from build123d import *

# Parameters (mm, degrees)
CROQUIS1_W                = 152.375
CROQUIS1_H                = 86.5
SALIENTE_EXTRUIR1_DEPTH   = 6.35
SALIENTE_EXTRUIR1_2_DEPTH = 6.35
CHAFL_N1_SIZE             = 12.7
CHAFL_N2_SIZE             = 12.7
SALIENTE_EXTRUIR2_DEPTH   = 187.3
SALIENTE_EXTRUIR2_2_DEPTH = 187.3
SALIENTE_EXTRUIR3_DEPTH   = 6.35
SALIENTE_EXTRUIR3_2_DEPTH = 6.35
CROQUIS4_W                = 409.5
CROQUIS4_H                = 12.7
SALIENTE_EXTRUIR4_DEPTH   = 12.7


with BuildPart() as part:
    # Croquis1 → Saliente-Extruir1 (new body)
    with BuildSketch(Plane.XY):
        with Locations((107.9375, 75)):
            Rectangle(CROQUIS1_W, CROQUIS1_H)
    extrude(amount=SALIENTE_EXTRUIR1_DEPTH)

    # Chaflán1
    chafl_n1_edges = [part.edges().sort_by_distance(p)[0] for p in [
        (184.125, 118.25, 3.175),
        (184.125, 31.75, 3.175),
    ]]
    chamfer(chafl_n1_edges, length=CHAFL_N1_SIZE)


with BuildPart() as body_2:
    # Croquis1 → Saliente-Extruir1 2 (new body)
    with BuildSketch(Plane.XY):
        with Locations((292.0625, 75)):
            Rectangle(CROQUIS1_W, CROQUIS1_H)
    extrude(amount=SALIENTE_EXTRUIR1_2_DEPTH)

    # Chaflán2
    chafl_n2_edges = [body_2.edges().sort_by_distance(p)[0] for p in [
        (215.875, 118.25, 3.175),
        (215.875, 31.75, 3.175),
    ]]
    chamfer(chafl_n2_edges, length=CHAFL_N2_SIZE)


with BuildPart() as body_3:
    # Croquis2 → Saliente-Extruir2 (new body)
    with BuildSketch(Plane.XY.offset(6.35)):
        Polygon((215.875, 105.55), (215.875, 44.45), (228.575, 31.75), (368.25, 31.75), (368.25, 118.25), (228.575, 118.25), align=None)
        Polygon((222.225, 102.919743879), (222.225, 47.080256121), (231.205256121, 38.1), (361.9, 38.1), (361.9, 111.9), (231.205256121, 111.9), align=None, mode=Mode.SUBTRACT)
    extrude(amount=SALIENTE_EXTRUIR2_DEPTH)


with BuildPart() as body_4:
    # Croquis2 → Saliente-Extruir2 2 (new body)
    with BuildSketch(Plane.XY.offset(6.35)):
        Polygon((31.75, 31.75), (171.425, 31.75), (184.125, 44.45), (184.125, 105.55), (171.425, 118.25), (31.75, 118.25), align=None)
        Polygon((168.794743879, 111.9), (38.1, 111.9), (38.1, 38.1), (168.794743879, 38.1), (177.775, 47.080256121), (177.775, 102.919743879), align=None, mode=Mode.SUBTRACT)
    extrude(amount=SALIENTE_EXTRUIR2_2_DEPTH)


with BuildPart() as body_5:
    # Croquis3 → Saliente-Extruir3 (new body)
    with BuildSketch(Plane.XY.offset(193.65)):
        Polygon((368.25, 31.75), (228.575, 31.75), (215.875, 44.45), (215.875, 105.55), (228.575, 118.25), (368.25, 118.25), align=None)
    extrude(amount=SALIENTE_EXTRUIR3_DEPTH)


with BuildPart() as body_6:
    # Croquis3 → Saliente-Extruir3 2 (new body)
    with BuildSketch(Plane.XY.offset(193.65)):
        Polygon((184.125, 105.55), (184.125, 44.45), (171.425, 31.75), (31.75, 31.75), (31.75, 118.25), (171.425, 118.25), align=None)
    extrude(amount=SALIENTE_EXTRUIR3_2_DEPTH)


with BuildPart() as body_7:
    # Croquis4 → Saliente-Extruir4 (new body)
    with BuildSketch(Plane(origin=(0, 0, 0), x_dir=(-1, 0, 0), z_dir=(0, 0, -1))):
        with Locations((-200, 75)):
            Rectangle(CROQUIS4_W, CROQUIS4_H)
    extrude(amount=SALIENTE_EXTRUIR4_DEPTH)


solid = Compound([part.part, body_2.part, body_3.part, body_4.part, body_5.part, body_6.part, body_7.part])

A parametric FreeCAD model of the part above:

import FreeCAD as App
import Part
import Sketcher
from FreeCAD import Vector
Q = App.Units.Quantity


def edges_at(feature, points):
    """Names of the edges that pass closest to the given points."""
    edges = feature.Shape.Edges
    near = lambda p: min(range(len(edges)), key=lambda i: edges[i].distToShape(Part.Vertex(*p))[0])
    return sorted({f"Edge{near(p) + 1}" for p in points})


def add_polygon(sketch, points):
    """Adds a closed chain of lines whose ends are joined by coincident constraints."""
    first, n = sketch.GeometryCount, len(points)
    for a, b in zip(points, points[1:] + points[:1]):
        sketch.addGeometry(Part.LineSegment(App.Vector(*a, 0), App.Vector(*b, 0)), False)
    for i in range(n):
        sketch.addConstraint(Sketcher.Constraint("Coincident", first + i, 2, first + (i + 1) % n, 1))

doc = App.newDocument("Part")
params = doc.addObject("Spreadsheet::Sheet", "Params")
for row, (alias, value) in enumerate([
    ("sketch1_height", "86.5 mm"),
    ("pad1_length", "6.35 mm"),
    ("chamfer_size", "12.7 mm"),
    ("sketch2_height", "86.5 mm"),
    ("pad2_length", "6.35 mm"),
    ("chamfer2_size", "12.7 mm"),
    ("sketch3_height", "61.1 mm"),
    ("sketch3_height2", "86.5 mm"),
    ("sketch3_height3", "73.8 mm"),
    ("sketch3_length", "12.7 mm"),
    ("pad3_length", "187.3 mm"),
    ("sketch4_height", "61.1 mm"),
    ("sketch4_height2", "86.5 mm"),
    ("sketch4_height3", "73.8 mm"),
    ("sketch4_length", "12.7 mm"),
    ("pad4_length", "187.3 mm"),
    ("sketch5_height", "86.5 mm"),
    ("sketch5_height2", "61.1 mm"),
    ("pad5_length", "6.35 mm"),
    ("sketch6_height", "61.1 mm"),
    ("sketch6_height2", "86.5 mm"),
    ("pad6_length", "6.35 mm"),
    ("sketch7_width", "409.5 mm"),
    ("sketch7_height", "12.7 mm"),
    ("pad7_length", "12.7 mm"),
], start=1):
    params.set(f"A{row}", alias)
    params.set(f"B{row}", "=" + value)
    params.setAlias(f"B{row}", alias)

body = doc.addObject("PartDesign::Body", "Body")

# Sketch on XY plane
sketch1 = doc.addObject("Sketcher::SketchObject", "Sketch")
body.addObject(sketch1)
sketch1.AttachmentSupport = (doc.XY_Plane, [""])
sketch1.MapMode = "FlatFace"
add_polygon(sketch1, [(32, 118), (32, 32), (184, 32), (184, 118)])  # lines 0-3
sketch1.addConstraint(Sketcher.Constraint("Vertical", 0))
sketch1.addConstraint(Sketcher.Constraint("Horizontal", 1))
sketch1.addConstraint(Sketcher.Constraint("Vertical", 2))
sketch1.addConstraint(Sketcher.Constraint("Horizontal", 3))
sketch1.addConstraint(Sketcher.Constraint("DistanceY", 0, 2, 0, 1, Q("86.5 mm")))
sketch1.addConstraint(Sketcher.Constraint("DistanceX", 1, 1, 1, 2, Q("152.375 mm")))
sketch1.addConstraint(Sketcher.Constraint("DistanceX", -1, 1, 0, 2, Q("31.75 mm")))
sketch1.addConstraint(Sketcher.Constraint("DistanceY", -1, 1, 0, 2, Q("31.75 mm")))
sketch1.setExpression("Constraints[8]", "Params.sketch1_height")
pad1 = doc.addObject("PartDesign::Pad", "Pad")
body.addObject(pad1)
pad1.Profile = sketch1
pad1.setExpression("Length", "Params.pad1_length")
doc.recompute()

chamfer = doc.addObject("PartDesign::Chamfer", "Chamfer")
body.addObject(chamfer)
chamfer.Base = (pad1, edges_at(pad1, [(184.125, 118.25, 3.175), (184.125, 31.75, 3.175)]))
chamfer.setExpression("Size", "Params.chamfer_size")
body2 = doc.addObject("PartDesign::Body", "Body001")

# Sketch on XY plane
sketch2 = doc.addObject("Sketcher::SketchObject", "Sketch001")
body2.addObject(sketch2)
sketch2.AttachmentSupport = (doc.getObject("XY_Plane001"), [""])
sketch2.MapMode = "FlatFace"
add_polygon(sketch2, [(216, 118), (216, 32), (368, 32), (368, 118)])  # lines 0-3
sketch2.addConstraint(Sketcher.Constraint("Vertical", 0))
sketch2.addConstraint(Sketcher.Constraint("Horizontal", 1))
sketch2.addConstraint(Sketcher.Constraint("Vertical", 2))
sketch2.addConstraint(Sketcher.Constraint("Horizontal", 3))
sketch2.addConstraint(Sketcher.Constraint("DistanceY", 0, 2, 0, 1, Q("86.5 mm")))
sketch2.addConstraint(Sketcher.Constraint("DistanceX", 1, 1, 1, 2, Q("152.375 mm")))
sketch2.addConstraint(Sketcher.Constraint("DistanceY", -1, 1, 0, 2, Q("31.75 mm")))
sketch2.addConstraint(Sketcher.Constraint("DistanceX", -1, 1, 1, 2, Q("368.25 mm")))
sketch2.setExpression("Constraints[8]", "Params.sketch2_height")
pad2 = doc.addObject("PartDesign::Pad", "Pad001")
body2.addObject(pad2)
pad2.Profile = sketch2
pad2.setExpression("Length", "Params.pad2_length")
doc.recompute()

chamfer2 = doc.addObject("PartDesign::Chamfer", "Chamfer001")
body2.addObject(chamfer2)
chamfer2.Base = (pad2, edges_at(pad2, [(215.875, 118.25, 3.175), (215.875, 31.75, 3.175)]))
chamfer2.setExpression("Size", "Params.chamfer2_size")
body3 = doc.addObject("PartDesign::Body", "Body002")

# Sketch on XY plane
sketch3 = doc.addObject("Sketcher::SketchObject", "Sketch002")
body3.addObject(sketch3)
sketch3.AttachmentSupport = (doc.getObject("XY_Plane002"), [""])
sketch3.MapMode = "FlatFace"
sketch3.AttachmentOffset = App.Placement(Vector(0, 0, 6.35), App.Rotation())
add_polygon(sketch3, [(216, 106), (216, 44), (229, 32), (368, 32), (368, 118), (229, 118)])  # lines 0-5
add_polygon(sketch3, [(222, 47), (222, 103), (231, 112), (362, 112), (362, 38), (231, 38)])  # lines 6-11
sketch3.addConstraint(Sketcher.Constraint("Vertical", 0))
sketch3.addConstraint(Sketcher.Constraint("Horizontal", 2))
sketch3.addConstraint(Sketcher.Constraint("Vertical", 3))
sketch3.addConstraint(Sketcher.Constraint("Horizontal", 4))
sketch3.addConstraint(Sketcher.Constraint("Vertical", 6))
sketch3.addConstraint(Sketcher.Constraint("Horizontal", 8))
sketch3.addConstraint(Sketcher.Constraint("Vertical", 9))
sketch3.addConstraint(Sketcher.Constraint("Horizontal", 10))
sketch3.addConstraint(Sketcher.Constraint("Perpendicular", 1, 5))
sketch3.addConstraint(Sketcher.Constraint("Parallel", 5, 7))
sketch3.addConstraint(Sketcher.Constraint("Perpendicular", 7, 11))
sketch3.addConstraint(Sketcher.Constraint("Vertical", 1, 2, 4, 2))
sketch3.addConstraint(Sketcher.Constraint("Vertical", 7, 2, 10, 2))
sketch3.addConstraint(Sketcher.Constraint("Equal", 1, 5))
sketch3.addConstraint(Sketcher.Constraint("DistanceY", 0, 2, 0, 1, Q("61.1 mm")))
sketch3.addConstraint(Sketcher.Constraint("DistanceY", 3, 1, 3, 2, Q("86.5 mm")))
sketch3.addConstraint(Sketcher.Constraint("DistanceY", 9, 2, 9, 1, Q("73.8 mm")))
sketch3.addConstraint(Sketcher.Constraint("Distance", 7, Q("12.7 mm")))
sketch3.addConstraint(Sketcher.Constraint("DistanceY", -1, 1, 7, 2, Q("111.9 mm")))
sketch3.addConstraint(Sketcher.Constraint("DistanceX", -1, 1, 8, 2, Q("361.9 mm")))
sketch3.addConstraint(Sketcher.Constraint("DistanceX", 2, 1, 2, 2, Q("139.675 mm")))
sketch3.addConstraint(Sketcher.Constraint("DistanceY", -1, 1, 0, 2, Q("44.45 mm")))
sketch3.addConstraint(Sketcher.Constraint("DistanceX", -1, 1, 2, 2, Q("368.25 mm")))
sketch3.addConstraint(Sketcher.Constraint("DistanceX", 5, 2, 6, 2, Q("6.35 mm")))
sketch3.setExpression("Constraints[26]", "Params.sketch3_height")
sketch3.setExpression("Constraints[27]", "Params.sketch3_height2")
sketch3.setExpression("Constraints[28]", "Params.sketch3_height3")
sketch3.setExpression("Constraints[29]", "Params.sketch3_length")
pad3 = doc.addObject("PartDesign::Pad", "Pad002")
body3.addObject(pad3)
pad3.Profile = sketch3
pad3.setExpression("Length", "Params.pad3_length")
body4 = doc.addObject("PartDesign::Body", "Body003")

# Sketch on XY plane
sketch4 = doc.addObject("Sketcher::SketchObject", "Sketch003")
body4.addObject(sketch4)
sketch4.AttachmentSupport = (doc.getObject("XY_Plane003"), [""])
sketch4.MapMode = "FlatFace"
sketch4.AttachmentOffset = App.Placement(Vector(0, 0, 6.35), App.Rotation())
add_polygon(sketch4, [(32, 32), (171, 32), (184, 44), (184, 106), (171, 118), (32, 118)])  # lines 0-5
add_polygon(sketch4, [(38, 112), (169, 112), (178, 103), (178, 47), (169, 38), (38, 38)])  # lines 6-11
sketch4.addConstraint(Sketcher.Constraint("Horizontal", 0))
sketch4.addConstraint(Sketcher.Constraint("Vertical", 2))
sketch4.addConstraint(Sketcher.Constraint("Horizontal", 4))
sketch4.addConstraint(Sketcher.Constraint("Vertical", 5))
sketch4.addConstraint(Sketcher.Constraint("Horizontal", 6))
sketch4.addConstraint(Sketcher.Constraint("Vertical", 8))
sketch4.addConstraint(Sketcher.Constraint("Horizontal", 10))
sketch4.addConstraint(Sketcher.Constraint("Vertical", 11))
sketch4.addConstraint(Sketcher.Constraint("Perpendicular", 1, 3))
sketch4.addConstraint(Sketcher.Constraint("Parallel", 3, 7))
sketch4.addConstraint(Sketcher.Constraint("Perpendicular", 7, 9))
sketch4.addConstraint(Sketcher.Constraint("Vertical", 0, 2, 3, 2))
sketch4.addConstraint(Sketcher.Constraint("Vertical", 6, 2, 9, 2))
sketch4.addConstraint(Sketcher.Constraint("Equal", 1, 3))
sketch4.addConstraint(Sketcher.Constraint("DistanceY", 2, 1, 2, 2, Q("61.1 mm")))
sketch4.addConstraint(Sketcher.Constraint("DistanceY", 5, 2, 5, 1, Q("86.5 mm")))
sketch4.addConstraint(Sketcher.Constraint("DistanceY", 11, 1, 11, 2, Q("73.8 mm")))
sketch4.addConstraint(Sketcher.Constraint("Distance", 7, Q("12.7 mm")))
sketch4.addConstraint(Sketcher.Constraint("DistanceY", -1, 1, 6, 2, Q("111.9 mm")))
sketch4.addConstraint(Sketcher.Constraint("DistanceX", -1, 1, 10, 2, Q("38.1 mm")))
sketch4.addConstraint(Sketcher.Constraint("DistanceX", 0, 1, 0, 2, Q("139.675 mm")))
sketch4.addConstraint(Sketcher.Constraint("DistanceY", -1, 1, 0, 2, Q("31.75 mm")))
sketch4.addConstraint(Sketcher.Constraint("DistanceX", -1, 1, 4, 2, Q("31.75 mm")))
sketch4.addConstraint(Sketcher.Constraint("DistanceX", 7, 2, 2, 2, Q("6.35 mm")))
sketch4.setExpression("Constraints[26]", "Params.sketch4_height")
sketch4.setExpression("Constraints[27]", "Params.sketch4_height2")
sketch4.setExpression("Constraints[28]", "Params.sketch4_height3")
sketch4.setExpression("Constraints[29]", "Params.sketch4_length")
pad4 = doc.addObject("PartDesign::Pad", "Pad003")
body4.addObject(pad4)
pad4.Profile = sketch4
pad4.setExpression("Length", "Params.pad4_length")
body5 = doc.addObject("PartDesign::Body", "Body004")

# Sketch on XY plane
sketch5 = doc.addObject("Sketcher::SketchObject", "Sketch004")
body5.addObject(sketch5)
sketch5.AttachmentSupport = (doc.getObject("XY_Plane004"), [""])
sketch5.MapMode = "FlatFace"
sketch5.AttachmentOffset = App.Placement(Vector(0, 0, 193.65), App.Rotation())
add_polygon(sketch5, [(229, 32), (368, 32), (368, 118), (229, 118), (216, 106), (216, 44)])  # lines 0-5
sketch5.addConstraint(Sketcher.Constraint("Horizontal", 0))
sketch5.addConstraint(Sketcher.Constraint("Vertical", 1))
sketch5.addConstraint(Sketcher.Constraint("Horizontal", 2))
sketch5.addConstraint(Sketcher.Constraint("Vertical", 4))
sketch5.addConstraint(Sketcher.Constraint("Perpendicular", 3, 5))
sketch5.addConstraint(Sketcher.Constraint("Vertical", 2, 2, 5, 2))
sketch5.addConstraint(Sketcher.Constraint("Equal", 3, 5))
sketch5.addConstraint(Sketcher.Constraint("DistanceY", 1, 1, 1, 2, Q("86.5 mm")))
sketch5.addConstraint(Sketcher.Constraint("DistanceY", 4, 2, 4, 1, Q("61.1 mm")))
sketch5.addConstraint(Sketcher.Constraint("DistanceX", 0, 1, 0, 2, Q("139.675 mm")))
sketch5.addConstraint(Sketcher.Constraint("DistanceX", -1, 1, 0, 2, Q("368.25 mm")))
sketch5.addConstraint(Sketcher.Constraint("DistanceY", -1, 1, 0, 2, Q("31.75 mm")))
sketch5.setExpression("Constraints[13]", "Params.sketch5_height")
sketch5.setExpression("Constraints[14]", "Params.sketch5_height2")
pad5 = doc.addObject("PartDesign::Pad", "Pad004")
body5.addObject(pad5)
pad5.Profile = sketch5
pad5.setExpression("Length", "Params.pad5_length")
body6 = doc.addObject("PartDesign::Body", "Body005")

# Sketch on XY plane
sketch6 = doc.addObject("Sketcher::SketchObject", "Sketch005")
body6.addObject(sketch6)
sketch6.AttachmentSupport = (doc.getObject("XY_Plane005"), [""])
sketch6.MapMode = "FlatFace"
sketch6.AttachmentOffset = App.Placement(Vector(0, 0, 193.65), App.Rotation())
add_polygon(sketch6, [(184, 44), (184, 106), (171, 118), (32, 118), (32, 32), (171, 32)])  # lines 0-5
sketch6.addConstraint(Sketcher.Constraint("Vertical", 0))
sketch6.addConstraint(Sketcher.Constraint("Horizontal", 2))
sketch6.addConstraint(Sketcher.Constraint("Vertical", 3))
sketch6.addConstraint(Sketcher.Constraint("Horizontal", 4))
sketch6.addConstraint(Sketcher.Constraint("Perpendicular", 1, 5))
sketch6.addConstraint(Sketcher.Constraint("Vertical", 1, 2, 4, 2))
sketch6.addConstraint(Sketcher.Constraint("Equal", 1, 5))
sketch6.addConstraint(Sketcher.Constraint("DistanceY", 0, 1, 0, 2, Q("61.1 mm")))
sketch6.addConstraint(Sketcher.Constraint("DistanceY", 3, 2, 3, 1, Q("86.5 mm")))
sketch6.addConstraint(Sketcher.Constraint("DistanceX", 2, 2, 2, 1, Q("139.675 mm")))
sketch6.addConstraint(Sketcher.Constraint("DistanceY", -1, 1, 0, 2, Q("105.55 mm")))
sketch6.addConstraint(Sketcher.Constraint("DistanceX", -1, 1, 2, 2, Q("31.75 mm")))
sketch6.setExpression("Constraints[13]", "Params.sketch6_height")
sketch6.setExpression("Constraints[14]", "Params.sketch6_height2")
pad6 = doc.addObject("PartDesign::Pad", "Pad005")
body6.addObject(pad6)
pad6.Profile = sketch6
pad6.setExpression("Length", "Params.pad6_length")
body7 = doc.addObject("PartDesign::Body", "Body006")

# Sketch on XY plane
sketch7 = doc.addObject("Sketcher::SketchObject", "Sketch006")
body7.addObject(sketch7)
sketch7.AttachmentSupport = (doc.getObject("XY_Plane006"), [""])
sketch7.MapMode = "FlatFace"
add_polygon(sketch7, [(405, 81), (405, 69), (-5, 69), (-5, 81)])  # lines 0-3
sketch7.addConstraint(Sketcher.Constraint("Vertical", 0))
sketch7.addConstraint(Sketcher.Constraint("Horizontal", 1))
sketch7.addConstraint(Sketcher.Constraint("Vertical", 2))
sketch7.addConstraint(Sketcher.Constraint("Horizontal", 3))
sketch7.addConstraint(Sketcher.Constraint("DistanceX", 1, 2, 1, 1, Q("409.5 mm")))
sketch7.addConstraint(Sketcher.Constraint("DistanceY", 0, 2, 0, 1, Q("12.7 mm")))
sketch7.addConstraint(Sketcher.Constraint("DistanceX", -1, 1, 0, 2, Q("404.75 mm")))
sketch7.addConstraint(Sketcher.Constraint("DistanceY", -1, 1, 0, 2, Q("68.65 mm")))
sketch7.setExpression("Constraints[8]", "Params.sketch7_width")
sketch7.setExpression("Constraints[9]", "Params.sketch7_height")
pad7 = doc.addObject("PartDesign::Pad", "Pad006")
body7.addObject(pad7)
pad7.Profile = sketch7
pad7.setExpression("Length", "Params.pad7_length")
pad7.Reversed = True

doc.recompute()
